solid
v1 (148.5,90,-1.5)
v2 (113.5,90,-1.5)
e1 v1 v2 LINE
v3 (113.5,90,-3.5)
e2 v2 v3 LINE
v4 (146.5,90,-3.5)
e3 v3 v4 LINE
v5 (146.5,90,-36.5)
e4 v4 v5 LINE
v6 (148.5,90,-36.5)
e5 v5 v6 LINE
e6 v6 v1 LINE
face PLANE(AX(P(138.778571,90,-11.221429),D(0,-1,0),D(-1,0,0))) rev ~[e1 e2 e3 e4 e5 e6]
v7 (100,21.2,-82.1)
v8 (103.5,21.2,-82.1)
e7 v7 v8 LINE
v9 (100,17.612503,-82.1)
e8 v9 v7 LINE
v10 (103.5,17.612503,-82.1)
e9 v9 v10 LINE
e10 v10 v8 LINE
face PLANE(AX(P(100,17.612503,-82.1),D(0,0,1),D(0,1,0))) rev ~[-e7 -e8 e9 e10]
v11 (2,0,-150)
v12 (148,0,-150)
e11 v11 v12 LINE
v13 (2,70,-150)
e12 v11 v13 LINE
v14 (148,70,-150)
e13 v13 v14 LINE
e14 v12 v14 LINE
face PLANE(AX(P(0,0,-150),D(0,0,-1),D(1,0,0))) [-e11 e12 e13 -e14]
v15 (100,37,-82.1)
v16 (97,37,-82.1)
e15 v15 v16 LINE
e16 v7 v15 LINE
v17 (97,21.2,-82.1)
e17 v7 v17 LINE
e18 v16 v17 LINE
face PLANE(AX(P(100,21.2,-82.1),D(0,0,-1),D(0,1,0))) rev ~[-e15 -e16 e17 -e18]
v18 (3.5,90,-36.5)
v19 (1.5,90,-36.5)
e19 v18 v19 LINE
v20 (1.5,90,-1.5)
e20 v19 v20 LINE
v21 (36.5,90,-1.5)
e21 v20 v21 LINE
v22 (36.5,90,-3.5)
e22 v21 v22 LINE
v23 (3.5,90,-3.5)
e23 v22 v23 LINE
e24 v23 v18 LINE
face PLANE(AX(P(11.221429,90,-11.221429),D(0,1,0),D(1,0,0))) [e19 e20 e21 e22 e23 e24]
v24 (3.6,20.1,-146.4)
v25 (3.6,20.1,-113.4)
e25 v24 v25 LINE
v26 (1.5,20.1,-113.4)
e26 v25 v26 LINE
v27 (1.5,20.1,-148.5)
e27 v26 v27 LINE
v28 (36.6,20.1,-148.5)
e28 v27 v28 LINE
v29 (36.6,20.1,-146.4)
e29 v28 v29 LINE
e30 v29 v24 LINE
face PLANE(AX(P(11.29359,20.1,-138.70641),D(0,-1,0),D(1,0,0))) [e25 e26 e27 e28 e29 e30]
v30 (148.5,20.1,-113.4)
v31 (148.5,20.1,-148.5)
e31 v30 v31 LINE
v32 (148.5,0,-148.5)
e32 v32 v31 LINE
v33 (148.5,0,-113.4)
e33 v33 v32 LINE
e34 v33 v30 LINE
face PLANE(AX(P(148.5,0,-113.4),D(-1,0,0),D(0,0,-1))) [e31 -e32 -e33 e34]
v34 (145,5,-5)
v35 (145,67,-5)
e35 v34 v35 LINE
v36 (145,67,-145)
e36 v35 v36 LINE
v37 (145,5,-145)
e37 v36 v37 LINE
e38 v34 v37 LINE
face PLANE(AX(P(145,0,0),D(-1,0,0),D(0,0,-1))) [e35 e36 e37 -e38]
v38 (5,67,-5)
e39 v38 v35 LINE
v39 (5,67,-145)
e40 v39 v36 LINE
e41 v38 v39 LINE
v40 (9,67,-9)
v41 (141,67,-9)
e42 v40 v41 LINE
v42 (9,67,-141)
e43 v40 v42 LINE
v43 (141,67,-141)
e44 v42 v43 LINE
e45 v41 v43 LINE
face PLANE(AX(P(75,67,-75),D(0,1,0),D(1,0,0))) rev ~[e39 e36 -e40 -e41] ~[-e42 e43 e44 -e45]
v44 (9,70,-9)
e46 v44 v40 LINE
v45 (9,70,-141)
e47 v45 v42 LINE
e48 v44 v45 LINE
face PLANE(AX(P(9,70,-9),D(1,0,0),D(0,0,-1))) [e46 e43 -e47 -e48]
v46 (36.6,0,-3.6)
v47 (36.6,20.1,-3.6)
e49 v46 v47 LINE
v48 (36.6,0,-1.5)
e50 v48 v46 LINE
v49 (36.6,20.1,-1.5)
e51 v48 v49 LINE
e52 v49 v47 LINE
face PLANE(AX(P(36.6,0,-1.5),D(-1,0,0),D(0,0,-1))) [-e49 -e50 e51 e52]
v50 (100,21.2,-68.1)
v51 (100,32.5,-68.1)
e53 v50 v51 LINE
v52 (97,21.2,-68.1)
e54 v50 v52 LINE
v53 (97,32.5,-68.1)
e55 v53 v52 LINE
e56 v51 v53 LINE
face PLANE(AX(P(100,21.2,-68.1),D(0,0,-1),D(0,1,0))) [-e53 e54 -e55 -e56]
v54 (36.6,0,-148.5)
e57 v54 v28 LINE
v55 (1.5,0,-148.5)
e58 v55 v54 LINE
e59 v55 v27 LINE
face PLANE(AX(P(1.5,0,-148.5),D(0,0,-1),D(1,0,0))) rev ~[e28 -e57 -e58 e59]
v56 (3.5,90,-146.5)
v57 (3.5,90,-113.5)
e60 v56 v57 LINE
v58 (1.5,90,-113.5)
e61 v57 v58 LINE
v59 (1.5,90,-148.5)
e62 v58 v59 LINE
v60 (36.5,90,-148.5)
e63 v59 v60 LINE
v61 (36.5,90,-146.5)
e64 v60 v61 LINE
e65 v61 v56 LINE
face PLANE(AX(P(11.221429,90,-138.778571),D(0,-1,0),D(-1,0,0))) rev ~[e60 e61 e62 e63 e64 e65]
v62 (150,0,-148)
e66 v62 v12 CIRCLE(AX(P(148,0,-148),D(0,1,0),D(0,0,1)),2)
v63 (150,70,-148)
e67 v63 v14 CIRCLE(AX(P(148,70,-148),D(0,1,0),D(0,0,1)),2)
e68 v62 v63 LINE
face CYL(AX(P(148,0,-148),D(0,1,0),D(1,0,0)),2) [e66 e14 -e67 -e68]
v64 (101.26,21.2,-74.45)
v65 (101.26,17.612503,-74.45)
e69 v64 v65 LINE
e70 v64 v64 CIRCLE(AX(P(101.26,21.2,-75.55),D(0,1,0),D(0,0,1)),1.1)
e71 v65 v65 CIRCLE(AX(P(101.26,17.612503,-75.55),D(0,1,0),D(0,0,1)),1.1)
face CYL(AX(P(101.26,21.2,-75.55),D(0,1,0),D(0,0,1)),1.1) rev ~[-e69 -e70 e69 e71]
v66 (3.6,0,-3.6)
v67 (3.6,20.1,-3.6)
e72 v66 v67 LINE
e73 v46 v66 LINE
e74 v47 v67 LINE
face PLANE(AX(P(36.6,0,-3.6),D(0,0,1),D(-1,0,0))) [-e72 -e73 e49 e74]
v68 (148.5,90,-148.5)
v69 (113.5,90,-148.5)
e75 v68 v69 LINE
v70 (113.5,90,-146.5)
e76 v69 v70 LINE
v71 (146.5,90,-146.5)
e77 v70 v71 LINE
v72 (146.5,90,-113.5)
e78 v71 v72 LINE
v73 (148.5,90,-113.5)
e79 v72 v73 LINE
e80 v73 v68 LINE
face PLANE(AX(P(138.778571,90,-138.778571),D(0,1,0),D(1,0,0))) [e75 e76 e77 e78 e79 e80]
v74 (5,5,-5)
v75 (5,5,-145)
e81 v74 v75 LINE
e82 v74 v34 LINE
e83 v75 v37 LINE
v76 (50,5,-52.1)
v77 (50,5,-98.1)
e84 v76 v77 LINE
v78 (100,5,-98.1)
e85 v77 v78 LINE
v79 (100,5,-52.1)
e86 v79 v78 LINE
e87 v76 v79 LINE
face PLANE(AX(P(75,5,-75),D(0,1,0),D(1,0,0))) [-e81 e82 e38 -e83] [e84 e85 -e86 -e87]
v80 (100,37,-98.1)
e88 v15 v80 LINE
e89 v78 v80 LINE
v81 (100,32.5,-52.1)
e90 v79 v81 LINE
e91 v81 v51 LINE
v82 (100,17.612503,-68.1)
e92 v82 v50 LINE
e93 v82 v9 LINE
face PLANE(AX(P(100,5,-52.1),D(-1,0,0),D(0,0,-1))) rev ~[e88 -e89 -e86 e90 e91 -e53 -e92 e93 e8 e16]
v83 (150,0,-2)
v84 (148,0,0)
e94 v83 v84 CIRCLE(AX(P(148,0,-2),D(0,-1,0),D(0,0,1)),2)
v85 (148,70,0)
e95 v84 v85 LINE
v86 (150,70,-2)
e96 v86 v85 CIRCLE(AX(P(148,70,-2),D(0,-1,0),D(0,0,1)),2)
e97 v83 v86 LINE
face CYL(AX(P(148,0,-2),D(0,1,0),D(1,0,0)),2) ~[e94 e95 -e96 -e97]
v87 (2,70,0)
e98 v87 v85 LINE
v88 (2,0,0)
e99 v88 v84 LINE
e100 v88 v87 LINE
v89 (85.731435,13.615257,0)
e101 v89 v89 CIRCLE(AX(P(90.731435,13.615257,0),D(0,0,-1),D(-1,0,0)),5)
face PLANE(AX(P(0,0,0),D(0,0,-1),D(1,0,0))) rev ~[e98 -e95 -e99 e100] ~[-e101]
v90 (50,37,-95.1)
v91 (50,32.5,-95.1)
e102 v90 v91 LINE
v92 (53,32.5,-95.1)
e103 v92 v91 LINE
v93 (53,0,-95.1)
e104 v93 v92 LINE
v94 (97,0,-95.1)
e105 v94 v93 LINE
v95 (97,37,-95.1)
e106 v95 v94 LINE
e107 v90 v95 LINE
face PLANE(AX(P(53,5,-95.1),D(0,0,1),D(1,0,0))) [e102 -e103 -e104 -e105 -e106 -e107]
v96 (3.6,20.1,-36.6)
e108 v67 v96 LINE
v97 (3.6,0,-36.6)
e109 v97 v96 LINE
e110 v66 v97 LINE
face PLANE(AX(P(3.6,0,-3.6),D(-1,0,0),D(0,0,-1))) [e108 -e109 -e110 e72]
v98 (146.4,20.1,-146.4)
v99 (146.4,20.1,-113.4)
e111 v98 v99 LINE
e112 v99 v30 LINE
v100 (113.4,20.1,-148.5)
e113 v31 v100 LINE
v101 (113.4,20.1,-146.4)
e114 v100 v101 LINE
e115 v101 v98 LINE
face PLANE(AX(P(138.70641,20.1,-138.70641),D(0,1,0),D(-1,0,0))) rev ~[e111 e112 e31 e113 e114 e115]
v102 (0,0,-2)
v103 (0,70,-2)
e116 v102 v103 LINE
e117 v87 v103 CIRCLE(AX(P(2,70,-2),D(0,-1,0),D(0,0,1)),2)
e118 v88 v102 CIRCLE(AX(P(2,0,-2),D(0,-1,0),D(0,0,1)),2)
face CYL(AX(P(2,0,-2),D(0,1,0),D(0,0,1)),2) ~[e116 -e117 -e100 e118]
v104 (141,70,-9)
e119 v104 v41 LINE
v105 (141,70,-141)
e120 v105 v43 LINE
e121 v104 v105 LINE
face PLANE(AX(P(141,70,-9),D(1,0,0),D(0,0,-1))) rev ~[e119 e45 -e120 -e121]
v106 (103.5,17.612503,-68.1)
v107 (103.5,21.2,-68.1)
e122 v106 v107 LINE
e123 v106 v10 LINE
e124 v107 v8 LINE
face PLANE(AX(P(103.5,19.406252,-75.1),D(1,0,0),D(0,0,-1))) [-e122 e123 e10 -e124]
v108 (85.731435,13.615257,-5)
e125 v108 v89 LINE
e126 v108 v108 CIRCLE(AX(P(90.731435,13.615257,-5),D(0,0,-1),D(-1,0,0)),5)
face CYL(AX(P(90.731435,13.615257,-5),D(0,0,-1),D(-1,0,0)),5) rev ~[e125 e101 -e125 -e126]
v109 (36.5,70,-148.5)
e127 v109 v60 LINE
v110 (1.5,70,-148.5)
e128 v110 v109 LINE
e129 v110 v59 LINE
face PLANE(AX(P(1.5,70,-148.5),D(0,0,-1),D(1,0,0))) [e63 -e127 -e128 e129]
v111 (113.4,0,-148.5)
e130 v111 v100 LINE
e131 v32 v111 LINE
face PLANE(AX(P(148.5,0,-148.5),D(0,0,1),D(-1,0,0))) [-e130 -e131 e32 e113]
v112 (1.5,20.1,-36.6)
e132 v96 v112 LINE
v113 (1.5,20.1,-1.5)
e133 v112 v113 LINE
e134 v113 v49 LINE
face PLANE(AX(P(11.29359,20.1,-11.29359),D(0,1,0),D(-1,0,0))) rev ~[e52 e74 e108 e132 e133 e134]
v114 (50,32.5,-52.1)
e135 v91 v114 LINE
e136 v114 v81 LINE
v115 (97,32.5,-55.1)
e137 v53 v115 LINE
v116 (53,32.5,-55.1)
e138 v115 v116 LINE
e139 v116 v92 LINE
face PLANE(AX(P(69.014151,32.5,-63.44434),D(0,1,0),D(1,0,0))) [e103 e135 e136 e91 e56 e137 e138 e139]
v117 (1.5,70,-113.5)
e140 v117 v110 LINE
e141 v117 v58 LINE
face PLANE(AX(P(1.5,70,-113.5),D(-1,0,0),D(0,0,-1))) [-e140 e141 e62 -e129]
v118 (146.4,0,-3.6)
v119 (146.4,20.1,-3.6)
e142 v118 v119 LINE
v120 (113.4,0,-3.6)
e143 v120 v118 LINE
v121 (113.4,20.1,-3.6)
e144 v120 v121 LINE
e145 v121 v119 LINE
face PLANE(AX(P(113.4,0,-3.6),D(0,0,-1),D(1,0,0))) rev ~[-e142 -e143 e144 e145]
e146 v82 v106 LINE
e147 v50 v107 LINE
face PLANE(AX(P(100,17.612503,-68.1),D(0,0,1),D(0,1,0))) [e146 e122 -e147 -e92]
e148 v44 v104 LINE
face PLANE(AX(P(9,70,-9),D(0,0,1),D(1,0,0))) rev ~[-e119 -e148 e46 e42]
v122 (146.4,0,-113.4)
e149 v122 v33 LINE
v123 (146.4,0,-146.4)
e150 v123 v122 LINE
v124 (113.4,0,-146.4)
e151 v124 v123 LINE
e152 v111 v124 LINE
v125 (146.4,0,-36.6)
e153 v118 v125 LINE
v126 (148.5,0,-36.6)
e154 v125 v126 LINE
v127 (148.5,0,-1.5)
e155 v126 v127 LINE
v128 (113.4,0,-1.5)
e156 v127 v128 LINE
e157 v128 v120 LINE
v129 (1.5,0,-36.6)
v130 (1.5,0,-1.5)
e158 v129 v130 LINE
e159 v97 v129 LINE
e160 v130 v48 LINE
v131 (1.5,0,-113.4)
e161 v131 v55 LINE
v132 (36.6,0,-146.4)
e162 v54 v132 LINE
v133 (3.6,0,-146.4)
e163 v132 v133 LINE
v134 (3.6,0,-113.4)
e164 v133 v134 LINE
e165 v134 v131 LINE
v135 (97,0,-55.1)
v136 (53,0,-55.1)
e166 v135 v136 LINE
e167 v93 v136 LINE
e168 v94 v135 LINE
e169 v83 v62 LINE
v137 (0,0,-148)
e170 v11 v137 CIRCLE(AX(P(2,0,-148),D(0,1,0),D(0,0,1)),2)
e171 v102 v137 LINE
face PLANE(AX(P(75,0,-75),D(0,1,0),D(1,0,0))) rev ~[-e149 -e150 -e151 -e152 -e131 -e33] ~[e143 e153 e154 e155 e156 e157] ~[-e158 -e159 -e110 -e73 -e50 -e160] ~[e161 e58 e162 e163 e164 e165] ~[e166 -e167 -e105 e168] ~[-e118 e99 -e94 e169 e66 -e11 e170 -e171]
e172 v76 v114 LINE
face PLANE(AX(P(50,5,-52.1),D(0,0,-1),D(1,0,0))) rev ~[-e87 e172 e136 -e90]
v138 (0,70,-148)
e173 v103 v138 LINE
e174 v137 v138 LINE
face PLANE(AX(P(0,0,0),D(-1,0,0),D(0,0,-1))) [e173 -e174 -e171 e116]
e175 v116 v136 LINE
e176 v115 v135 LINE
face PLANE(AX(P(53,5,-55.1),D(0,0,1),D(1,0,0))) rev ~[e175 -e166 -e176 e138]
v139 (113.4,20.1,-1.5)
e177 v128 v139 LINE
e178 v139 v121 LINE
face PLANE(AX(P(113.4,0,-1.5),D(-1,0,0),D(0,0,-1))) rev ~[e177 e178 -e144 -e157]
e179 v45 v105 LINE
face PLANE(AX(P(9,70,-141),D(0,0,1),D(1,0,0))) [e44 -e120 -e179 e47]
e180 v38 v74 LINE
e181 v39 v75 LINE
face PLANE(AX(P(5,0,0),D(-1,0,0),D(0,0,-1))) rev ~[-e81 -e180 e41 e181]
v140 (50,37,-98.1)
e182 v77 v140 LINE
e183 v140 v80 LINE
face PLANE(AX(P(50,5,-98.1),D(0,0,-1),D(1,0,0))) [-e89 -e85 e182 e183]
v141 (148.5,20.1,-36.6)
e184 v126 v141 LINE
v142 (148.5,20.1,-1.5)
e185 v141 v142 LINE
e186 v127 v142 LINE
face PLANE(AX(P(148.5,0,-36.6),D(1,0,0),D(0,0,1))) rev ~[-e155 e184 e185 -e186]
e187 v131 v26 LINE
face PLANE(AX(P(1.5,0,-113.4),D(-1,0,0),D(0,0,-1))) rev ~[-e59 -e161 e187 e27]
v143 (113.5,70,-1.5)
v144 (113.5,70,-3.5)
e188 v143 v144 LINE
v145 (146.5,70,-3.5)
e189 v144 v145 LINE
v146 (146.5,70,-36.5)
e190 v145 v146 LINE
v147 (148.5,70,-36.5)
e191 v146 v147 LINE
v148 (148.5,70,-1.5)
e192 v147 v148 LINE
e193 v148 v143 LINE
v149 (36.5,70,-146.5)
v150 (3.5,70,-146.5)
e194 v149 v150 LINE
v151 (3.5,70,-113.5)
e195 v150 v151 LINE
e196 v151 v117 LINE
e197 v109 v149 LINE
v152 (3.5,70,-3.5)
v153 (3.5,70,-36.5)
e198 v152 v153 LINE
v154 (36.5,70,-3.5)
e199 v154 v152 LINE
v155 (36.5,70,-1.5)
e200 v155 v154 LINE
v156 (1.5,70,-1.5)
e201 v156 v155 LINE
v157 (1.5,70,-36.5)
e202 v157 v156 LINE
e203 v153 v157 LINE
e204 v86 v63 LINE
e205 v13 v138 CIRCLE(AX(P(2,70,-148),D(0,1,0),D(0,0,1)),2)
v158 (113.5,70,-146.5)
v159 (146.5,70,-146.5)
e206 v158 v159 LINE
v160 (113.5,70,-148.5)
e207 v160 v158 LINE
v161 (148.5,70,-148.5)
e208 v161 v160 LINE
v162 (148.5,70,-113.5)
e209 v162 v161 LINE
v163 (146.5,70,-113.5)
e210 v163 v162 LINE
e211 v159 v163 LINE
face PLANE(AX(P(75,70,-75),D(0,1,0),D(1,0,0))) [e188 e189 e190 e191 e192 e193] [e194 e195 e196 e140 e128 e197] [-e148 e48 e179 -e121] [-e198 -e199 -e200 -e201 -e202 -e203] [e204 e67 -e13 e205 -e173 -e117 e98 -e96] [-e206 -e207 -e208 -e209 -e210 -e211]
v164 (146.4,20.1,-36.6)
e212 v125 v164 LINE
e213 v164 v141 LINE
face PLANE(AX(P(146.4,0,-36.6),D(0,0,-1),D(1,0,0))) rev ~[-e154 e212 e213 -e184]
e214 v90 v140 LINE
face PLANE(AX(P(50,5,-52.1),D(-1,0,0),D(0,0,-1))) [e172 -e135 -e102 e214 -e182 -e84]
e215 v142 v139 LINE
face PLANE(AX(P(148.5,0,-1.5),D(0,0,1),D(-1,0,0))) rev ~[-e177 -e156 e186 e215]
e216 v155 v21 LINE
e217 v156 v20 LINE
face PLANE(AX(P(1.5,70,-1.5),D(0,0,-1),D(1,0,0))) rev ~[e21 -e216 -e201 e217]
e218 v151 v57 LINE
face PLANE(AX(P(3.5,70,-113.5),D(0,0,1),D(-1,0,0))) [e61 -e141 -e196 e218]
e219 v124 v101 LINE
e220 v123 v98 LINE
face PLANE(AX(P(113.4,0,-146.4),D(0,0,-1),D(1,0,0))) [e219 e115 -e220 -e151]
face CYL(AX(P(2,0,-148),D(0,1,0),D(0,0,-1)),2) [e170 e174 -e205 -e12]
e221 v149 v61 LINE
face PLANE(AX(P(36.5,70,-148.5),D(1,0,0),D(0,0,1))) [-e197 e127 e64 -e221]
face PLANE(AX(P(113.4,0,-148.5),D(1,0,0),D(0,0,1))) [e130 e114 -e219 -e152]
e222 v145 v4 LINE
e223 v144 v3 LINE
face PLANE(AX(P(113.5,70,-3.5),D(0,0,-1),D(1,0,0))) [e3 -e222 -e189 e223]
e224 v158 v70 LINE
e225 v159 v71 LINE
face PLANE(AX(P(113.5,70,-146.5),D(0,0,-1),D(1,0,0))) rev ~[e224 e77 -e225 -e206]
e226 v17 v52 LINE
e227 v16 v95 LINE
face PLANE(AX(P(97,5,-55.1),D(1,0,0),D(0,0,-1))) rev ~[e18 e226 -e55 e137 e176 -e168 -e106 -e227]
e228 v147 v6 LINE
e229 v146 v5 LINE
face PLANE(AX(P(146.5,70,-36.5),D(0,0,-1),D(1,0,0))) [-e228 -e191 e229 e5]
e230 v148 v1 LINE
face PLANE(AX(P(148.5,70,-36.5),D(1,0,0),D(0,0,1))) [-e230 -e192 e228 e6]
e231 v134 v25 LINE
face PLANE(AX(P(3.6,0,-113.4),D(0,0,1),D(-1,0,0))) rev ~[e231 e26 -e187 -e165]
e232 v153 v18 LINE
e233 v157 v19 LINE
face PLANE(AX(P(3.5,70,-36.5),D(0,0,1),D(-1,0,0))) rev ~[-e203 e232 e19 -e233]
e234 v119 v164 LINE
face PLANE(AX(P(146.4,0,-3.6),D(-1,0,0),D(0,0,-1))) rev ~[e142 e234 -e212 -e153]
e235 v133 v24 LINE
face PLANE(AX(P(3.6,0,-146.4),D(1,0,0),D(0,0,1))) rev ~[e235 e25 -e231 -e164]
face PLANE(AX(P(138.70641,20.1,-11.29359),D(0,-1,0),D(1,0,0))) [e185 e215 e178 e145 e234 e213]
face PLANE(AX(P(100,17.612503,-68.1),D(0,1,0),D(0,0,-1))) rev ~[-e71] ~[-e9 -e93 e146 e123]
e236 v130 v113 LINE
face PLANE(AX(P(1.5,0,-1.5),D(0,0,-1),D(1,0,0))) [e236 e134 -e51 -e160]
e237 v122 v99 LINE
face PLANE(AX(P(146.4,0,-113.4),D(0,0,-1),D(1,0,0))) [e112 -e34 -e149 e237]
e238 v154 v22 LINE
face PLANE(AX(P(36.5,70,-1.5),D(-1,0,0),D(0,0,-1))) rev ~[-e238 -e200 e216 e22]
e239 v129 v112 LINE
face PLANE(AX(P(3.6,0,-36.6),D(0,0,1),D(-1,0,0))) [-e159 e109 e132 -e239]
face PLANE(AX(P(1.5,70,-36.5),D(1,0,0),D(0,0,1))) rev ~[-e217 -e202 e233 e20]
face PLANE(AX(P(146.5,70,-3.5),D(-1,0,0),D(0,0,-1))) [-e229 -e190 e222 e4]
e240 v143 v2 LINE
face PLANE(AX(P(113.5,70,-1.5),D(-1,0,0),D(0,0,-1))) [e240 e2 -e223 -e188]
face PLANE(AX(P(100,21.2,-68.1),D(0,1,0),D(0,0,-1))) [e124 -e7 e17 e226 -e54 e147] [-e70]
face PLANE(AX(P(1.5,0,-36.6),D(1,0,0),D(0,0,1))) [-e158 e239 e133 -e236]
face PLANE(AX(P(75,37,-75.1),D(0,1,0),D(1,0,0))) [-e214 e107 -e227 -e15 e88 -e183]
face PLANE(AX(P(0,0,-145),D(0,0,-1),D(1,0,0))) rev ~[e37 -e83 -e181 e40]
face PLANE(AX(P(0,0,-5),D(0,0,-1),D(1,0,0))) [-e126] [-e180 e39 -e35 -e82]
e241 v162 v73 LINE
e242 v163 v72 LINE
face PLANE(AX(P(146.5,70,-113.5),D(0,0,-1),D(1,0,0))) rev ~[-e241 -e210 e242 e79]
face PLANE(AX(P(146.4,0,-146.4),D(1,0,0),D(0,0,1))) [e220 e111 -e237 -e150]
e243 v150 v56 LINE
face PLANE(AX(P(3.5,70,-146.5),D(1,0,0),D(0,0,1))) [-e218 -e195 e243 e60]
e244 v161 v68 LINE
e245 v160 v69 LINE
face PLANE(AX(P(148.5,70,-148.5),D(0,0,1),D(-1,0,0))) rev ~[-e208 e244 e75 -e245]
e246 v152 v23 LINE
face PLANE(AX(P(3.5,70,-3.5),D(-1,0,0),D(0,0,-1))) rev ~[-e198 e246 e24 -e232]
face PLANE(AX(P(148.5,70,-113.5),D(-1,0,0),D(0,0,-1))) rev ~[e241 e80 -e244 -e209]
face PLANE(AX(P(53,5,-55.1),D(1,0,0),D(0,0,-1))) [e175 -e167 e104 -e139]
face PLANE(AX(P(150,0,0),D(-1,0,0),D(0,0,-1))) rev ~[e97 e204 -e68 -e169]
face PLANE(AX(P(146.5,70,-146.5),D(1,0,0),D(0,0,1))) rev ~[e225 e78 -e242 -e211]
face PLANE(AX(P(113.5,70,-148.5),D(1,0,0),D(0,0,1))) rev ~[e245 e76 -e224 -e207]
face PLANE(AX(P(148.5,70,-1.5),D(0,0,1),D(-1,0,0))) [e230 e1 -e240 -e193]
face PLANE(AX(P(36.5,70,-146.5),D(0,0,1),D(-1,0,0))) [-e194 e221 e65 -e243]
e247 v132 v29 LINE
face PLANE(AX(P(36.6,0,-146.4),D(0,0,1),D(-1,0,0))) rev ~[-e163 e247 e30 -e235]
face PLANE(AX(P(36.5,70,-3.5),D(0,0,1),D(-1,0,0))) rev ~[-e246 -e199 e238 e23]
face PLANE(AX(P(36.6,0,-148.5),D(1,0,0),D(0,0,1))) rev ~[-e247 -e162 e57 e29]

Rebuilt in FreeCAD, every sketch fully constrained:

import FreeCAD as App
import Part
import Sketcher
from FreeCAD import Vector
Q = App.Units.Quantity


def edges_at(feature, points):
    """Names of the edges that pass closest to the given points."""
    edges = feature.Shape.Edges
    near = lambda p: min(range(len(edges)), key=lambda i: edges[i].distToShape(Part.Vertex(*p))[0])
    return sorted({f"Edge{near(p) + 1}" for p in points})


def faces_at(feature, points):
    """Names of the faces that lie closest to the given points."""
    faces = feature.Shape.Faces
    near = lambda p: min(range(len(faces)), key=lambda i: faces[i].distToShape(Part.Vertex(*p))[0])
    return sorted({f"Face{near(p) + 1}" for p in points})

doc = App.newDocument("Part")
body = doc.addObject("PartDesign::Body", "Body")

sketch1 = body.newObject("Sketcher::SketchObject", "Sketch")
sketch1.AttachmentSupport = (doc.getObject("XZ_Plane"), [""])
sketch1.MapMode = "FlatFace"
sketch1.addGeometry(Part.LineSegment(Vector(0, -150, 0), Vector(0, 0, 0)), False)
sketch1.addGeometry(Part.LineSegment(Vector(0, 0, 0), Vector(150, 0, 0)), False)
sketch1.addGeometry(Part.LineSegment(Vector(150, 0, 0), Vector(150, -150, 0)), False)
sketch1.addGeometry(Part.LineSegment(Vector(150, -150, 0), Vector(0, -150, 0)), False)
sketch1.addConstraint(Sketcher.Constraint("Coincident", 0, 2, 1, 1))
sketch1.addConstraint(Sketcher.Constraint("Coincident", 1, 2, 2, 1))
sketch1.addConstraint(Sketcher.Constraint("Coincident", 2, 2, 3, 1))
sketch1.addConstraint(Sketcher.Constraint("Coincident", 3, 2, 0, 1))
sketch1.addConstraint(Sketcher.Constraint("Vertical", 0))
sketch1.addConstraint(Sketcher.Constraint("Horizontal", 1))
sketch1.addConstraint(Sketcher.Constraint("Vertical", 2))
sketch1.addConstraint(Sketcher.Constraint("Horizontal", 3))
sketch1.addConstraint(Sketcher.Constraint("Coincident", 0, 2, -1, 1))
sketch1.addConstraint(Sketcher.Constraint("Equal", 3, 0))
sketch1.addConstraint(Sketcher.Constraint("DistanceX", 1, 1, 1, 2, Q("150 mm")))
pad1 = body.newObject("PartDesign::Pad", "Pad")
pad1.Profile = sketch1
pad1.Length = 70
pad1.Reversed = True
doc.recompute()

thickness = body.newObject("PartDesign::Thickness", "Thickness")
thickness.Base = (pad1, faces_at(pad1, [(75, 70, -75)]))
thickness.Value = 5
thickness.Reversed = True
thickness.Join = "Intersection"

sketch2 = body.newObject("Sketcher::SketchObject", "Sketch001")
sketch2.AttachmentSupport = (doc.getObject("XZ_Plane"), [""])
sketch2.MapMode = "FlatFace"
sketch2.AttachmentOffset = App.Placement(Vector(0, 0, -5), App.Rotation())
sketch2.addGeometry(Part.LineSegment(Vector(50, -98.1, 0), Vector(50, -52.1, 0)), False)
sketch2.addGeometry(Part.LineSegment(Vector(50, -52.1, 0), Vector(100, -52.1, 0)), False)
sketch2.addGeometry(Part.LineSegment(Vector(100, -52.1, 0), Vector(100, -98.1, 0)), False)
sketch2.addGeometry(Part.LineSegment(Vector(100, -98.1, 0), Vector(50, -98.1, 0)), False)
sketch2.addGeometry(Part.LineSegment(Vector(97, -55.1, 0), Vector(53, -55.1, 0)), False)
sketch2.addGeometry(Part.LineSegment(Vector(53, -55.1, 0), Vector(53, -95.1, 0)), False)
sketch2.addGeometry(Part.LineSegment(Vector(53, -95.1, 0), Vector(97, -95.1, 0)), False)
sketch2.addGeometry(Part.LineSegment(Vector(97, -95.1, 0), Vector(97, -55.1, 0)), False)
sketch2.addConstraint(Sketcher.Constraint("Coincident", 0, 2, 1, 1))
sketch2.addConstraint(Sketcher.Constraint("Coincident", 1, 2, 2, 1))
sketch2.addConstraint(Sketcher.Constraint("Coincident", 2, 2, 3, 1))
sketch2.addConstraint(Sketcher.Constraint("Coincident", 3, 2, 0, 1))
sketch2.addConstraint(Sketcher.Constraint("Coincident", 4, 2, 5, 1))
sketch2.addConstraint(Sketcher.Constraint("Coincident", 5, 2, 6, 1))
sketch2.addConstraint(Sketcher.Constraint("Coincident", 6, 2, 7, 1))
sketch2.addConstraint(Sketcher.Constraint("Coincident", 7, 2, 4, 1))
sketch2.addConstraint(Sketcher.Constraint("Vertical", 0))
sketch2.addConstraint(Sketcher.Constraint("Horizontal", 1))
sketch2.addConstraint(Sketcher.Constraint("Vertical", 2))
sketch2.addConstraint(Sketcher.Constraint("Horizontal", 3))
sketch2.addConstraint(Sketcher.Constraint("Horizontal", 4))
sketch2.addConstraint(Sketcher.Constraint("Vertical", 5))
sketch2.addConstraint(Sketcher.Constraint("Horizontal", 6))
sketch2.addConstraint(Sketcher.Constraint("Vertical", 7))
sketch2.addConstraint(Sketcher.Constraint("DistanceX", 1, 1, 1, 2, Q("50 mm")))
sketch2.addConstraint(Sketcher.Constraint("DistanceX", 4, 2, 4, 1, Q("44 mm")))
sketch2.addConstraint(Sketcher.Constraint("DistanceY", 0, 1, 0, 2, Q("46 mm")))
sketch2.addConstraint(Sketcher.Constraint("DistanceY", 5, 2, 5, 1, Q("40 mm")))
sketch2.addConstraint(Sketcher.Constraint("DistanceX", -1, 1, 0, 2, Q("50 mm")))
sketch2.addConstraint(Sketcher.Constraint("DistanceX", -1, 1, 4, 2, Q("53 mm")))
sketch2.addConstraint(Sketcher.Constraint("DistanceY", 4, 2, 0, 2, Q("3 mm")))
sketch2.addConstraint(Sketcher.Constraint("DistanceY", 0, 2, -1, 1, Q("52.1 mm")))
pad2 = body.newObject("PartDesign::Pad", "Pad001")
pad2.Profile = sketch2
pad2.Length = 32
pad2.Reversed = True

sketch3 = body.newObject("Sketcher::SketchObject", "Sketch002")
sketch3.AttachmentSupport = (doc.getObject("XZ_Plane"), [""])
sketch3.MapMode = "FlatFace"
sketch3.AttachmentOffset = App.Placement(Vector(0, 0, -5), App.Rotation())
sketch3.addGeometry(Part.LineSegment(Vector(53, -95.1, 0), Vector(53, -55.1, 0)), False)
sketch3.addGeometry(Part.LineSegment(Vector(53, -55.1, 0), Vector(97, -55.1, 0)), False)
sketch3.addGeometry(Part.LineSegment(Vector(97, -55.1, 0), Vector(97, -95.1, 0)), False)
sketch3.addGeometry(Part.LineSegment(Vector(97, -95.1, 0), Vector(53, -95.1, 0)), False)
sketch3.addConstraint(Sketcher.Constraint("Coincident", 0, 2, 1, 1))
sketch3.addConstraint(Sketcher.Constraint("Coincident", 1, 2, 2, 1))
sketch3.addConstraint(Sketcher.Constraint("Coincident", 2, 2, 3, 1))
sketch3.addConstraint(Sketcher.Constraint("Coincident", 3, 2, 0, 1))
sketch3.addConstraint(Sketcher.Constraint("Vertical", 0))
sketch3.addConstraint(Sketcher.Constraint("Horizontal", 1))
sketch3.addConstraint(Sketcher.Constraint("Vertical", 2))
sketch3.addConstraint(Sketcher.Constraint("Horizontal", 3))
sketch3.addConstraint(Sketcher.Constraint("DistanceX", 1, 1, 1, 2, Q("44 mm")))
sketch3.addConstraint(Sketcher.Constraint("DistanceY", 0, 1, 0, 2, Q("40 mm")))
sketch3.addConstraint(Sketcher.Constraint("DistanceX", -1, 1, 0, 2, Q("53 mm")))
sketch3.addConstraint(Sketcher.Constraint("DistanceY", 0, 2, -1, 1, Q("55.1 mm")))
pocket1 = body.newObject("PartDesign::Pocket", "Pocket")
pocket1.Profile = sketch3
pocket1.Type = "UpToFirst"
pocket1.Reversed = True

sketch4 = body.newObject("Sketcher::SketchObject", "Sketch003")
sketch4.AttachmentSupport = (doc.getObject("XZ_Plane"), [""])
sketch4.MapMode = "FlatFace"
sketch4.AttachmentOffset = App.Placement(Vector(0, 0, -70), App.Rotation())
sketch4.addGeometry(Part.LineSegment(Vector(1.5, -148.5, 0), Vector(1.5, -113.5, 0)), False)
sketch4.addGeometry(Part.LineSegment(Vector(1.5, -113.5, 0), Vector(3.5, -113.5, 0)), False)
sketch4.addGeometry(Part.LineSegment(Vector(3.5, -113.5, 0), Vector(3.5, -146.5, 0)), False)
sketch4.addGeometry(Part.LineSegment(Vector(3.5, -146.5, 0), Vector(36.5, -146.5, 0)), False)
sketch4.addGeometry(Part.LineSegment(Vector(36.5, -146.5, 0), Vector(36.5, -148.5, 0)), False)
sketch4.addGeometry(Part.LineSegment(Vector(36.5, -148.5, 0), Vector(1.5, -148.5, 0)), False)
sketch4.addGeometry(Part.LineSegment(Vector(1.5, -36.5, 0), Vector(1.5, -1.5, 0)), False)
sketch4.addGeometry(Part.LineSegment(Vector(1.5, -1.5, 0), Vector(36.5, -1.5, 0)), False)
sketch4.addGeometry(Part.LineSegment(Vector(36.5, -1.5, 0), Vector(36.5, -3.5, 0)), False)
sketch4.addGeometry(Part.LineSegment(Vector(36.5, -3.5, 0), Vector(3.5, -3.5, 0)), False)
sketch4.addGeometry(Part.LineSegment(Vector(3.5, -3.5, 0), Vector(3.5, -36.5, 0)), False)
sketch4.addGeometry(Part.LineSegment(Vector(3.5, -36.5, 0), Vector(1.5, -36.5, 0)), False)
sketch4.addGeometry(Part.LineSegment(Vector(148.5, -1.5, 0), Vector(148.5, -36.5, 0)), False)
sketch4.addGeometry(Part.LineSegment(Vector(148.5, -36.5, 0), Vector(146.5, -36.5, 0)), False)
sketch4.addGeometry(Part.LineSegment(Vector(146.5, -36.5, 0), Vector(146.5, -3.5, 0)), False)
sketch4.addGeometry(Part.LineSegment(Vector(146.5, -3.5, 0), Vector(113.5, -3.5, 0)), False)
sketch4.addGeometry(Part.LineSegment(Vector(113.5, -3.5, 0), Vector(113.5, -1.5, 0)), False)
sketch4.addGeometry(Part.LineSegment(Vector(113.5, -1.5, 0), Vector(148.5, -1.5, 0)), False)
sketch4.addGeometry(Part.LineSegment(Vector(148.5, -113.5, 0), Vector(148.5, -148.5, 0)), False)
sketch4.addGeometry(Part.LineSegment(Vector(148.5, -148.5, 0), Vector(113.5, -148.5, 0)), False)
sketch4.addGeometry(Part.LineSegment(Vector(113.5, -148.5, 0), Vector(113.5, -146.5, 0)), False)
sketch4.addGeometry(Part.LineSegment(Vector(113.5, -146.5, 0), Vector(146.5, -146.5, 0)), False)
sketch4.addGeometry(Part.LineSegment(Vector(146.5, -146.5, 0), Vector(146.5, -113.5, 0)), False)
sketch4.addGeometry(Part.LineSegment(Vector(146.5, -113.5, 0), Vector(148.5, -113.5, 0)), False)
sketch4.addConstraint(Sketcher.Constraint("Coincident", 0, 2, 1, 1))
sketch4.addConstraint(Sketcher.Constraint("Coincident", 1, 2, 2, 1))
sketch4.addConstraint(Sketcher.Constraint("Coincident", 2, 2, 3, 1))
sketch4.addConstraint(Sketcher.Constraint("Coincident", 3, 2, 4, 1))
sketch4.addConstraint(Sketcher.Constraint("Coincident", 4, 2, 5, 1))
sketch4.addConstraint(Sketcher.Constraint("Coincident", 5, 2, 0, 1))
sketch4.addConstraint(Sketcher.Constraint("Coincident", 6, 2, 7, 1))
sketch4.addConstraint(Sketcher.Constraint("Coincident", 7, 2, 8, 1))
sketch4.addConstraint(Sketcher.Constraint("Coincident", 8, 2, 9, 1))
sketch4.addConstraint(Sketcher.Constraint("Coincident", 9, 2, 10, 1))
sketch4.addConstraint(Sketcher.Constraint("Coincident", 10, 2, 11, 1))
sketch4.addConstraint(Sketcher.Constraint("Coincident", 11, 2, 6, 1))
sketch4.addConstraint(Sketcher.Constraint("Coincident", 12, 2, 13, 1))
sketch4.addConstraint(Sketcher.Constraint("Coincident", 13, 2, 14, 1))
sketch4.addConstraint(Sketcher.Constraint("Coincident", 14, 2, 15, 1))
sketch4.addConstraint(Sketcher.Constraint("Coincident", 15, 2, 16, 1))
sketch4.addConstraint(Sketcher.Constraint("Coincident", 16, 2, 17, 1))
sketch4.addConstraint(Sketcher.Constraint("Coincident", 17, 2, 12, 1))
sketch4.addConstraint(Sketcher.Constraint("Coincident", 18, 2, 19, 1))
sketch4.addConstraint(Sketcher.Constraint("Coincident", 19, 2, 20, 1))
sketch4.addConstraint(Sketcher.Constraint("Coincident", 20, 2, 21, 1))
sketch4.addConstraint(Sketcher.Constraint("Coincident", 21, 2, 22, 1))
sketch4.addConstraint(Sketcher.Constraint("Coincident", 22, 2, 23, 1))
sketch4.addConstraint(Sketcher.Constraint("Coincident", 23, 2, 18, 1))
sketch4.addConstraint(Sketcher.Constraint("Vertical", 0))
sketch4.addConstraint(Sketcher.Constraint("Horizontal", 1))
sketch4.addConstraint(Sketcher.Constraint("Vertical", 2))
sketch4.addConstraint(Sketcher.Constraint("Horizontal", 3))
sketch4.addConstraint(Sketcher.Constraint("Vertical", 4))
sketch4.addConstraint(Sketcher.Constraint("Horizontal", 5))
sketch4.addConstraint(Sketcher.Constraint("Vertical", 6))
sketch4.addConstraint(Sketcher.Constraint("Horizontal", 7))
sketch4.addConstraint(Sketcher.Constraint("Vertical", 8))
sketch4.addConstraint(Sketcher.Constraint("Horizontal", 9))
sketch4.addConstraint(Sketcher.Constraint("Vertical", 10))
sketch4.addConstraint(Sketcher.Constraint("Horizontal", 11))
sketch4.addConstraint(Sketcher.Constraint("Vertical", 12))
sketch4.addConstraint(Sketcher.Constraint("Horizontal", 13))
sketch4.addConstraint(Sketcher.Constraint("Vertical", 14))
sketch4.addConstraint(Sketcher.Constraint("Horizontal", 15))
sketch4.addConstraint(Sketcher.Constraint("Vertical", 16))
sketch4.addConstraint(Sketcher.Constraint("Horizontal", 17))
sketch4.addConstraint(Sketcher.Constraint("Vertical", 18))
sketch4.addConstraint(Sketcher.Constraint("Horizontal", 19))
sketch4.addConstraint(Sketcher.Constraint("Vertical", 20))
sketch4.addConstraint(Sketcher.Constraint("Horizontal", 21))
sketch4.addConstraint(Sketcher.Constraint("Vertical", 22))
sketch4.addConstraint(Sketcher.Constraint("Horizontal", 23))
sketch4.addConstraint(Sketcher.Constraint("Horizontal", 11, 2, 12, 2))
sketch4.addConstraint(Sketcher.Constraint("Horizontal", 9, 2, 14, 2))
sketch4.addConstraint(Sketcher.Constraint("Horizontal", 7, 2, 16, 2))
sketch4.addConstraint(Sketcher.Constraint("Horizontal", 5, 2, 18, 2))
sketch4.addConstraint(Sketcher.Constraint("Horizontal", 3, 2, 20, 2))
sketch4.addConstraint(Sketcher.Constraint("Horizontal", 1, 2, 22, 2))
sketch4.addConstraint(Sketcher.Constraint("Vertical", 5, 2, 6, 2))
sketch4.addConstraint(Sketcher.Constraint("Vertical", 4, 2, 7, 2))
sketch4.addConstraint(Sketcher.Constraint("Vertical", 2, 2, 9, 2))
sketch4.addConstraint(Sketcher.Constraint("Vertical", 17, 2, 18, 2))
sketch4.addConstraint(Sketcher.Constraint("Vertical", 16, 2, 19, 2))
sketch4.addConstraint(Sketcher.Constraint("Vertical", 14, 2, 21, 2))
sketch4.addConstraint(Sketcher.Constraint("Equal", 11, 13))
sketch4.addConstraint(Sketcher.Constraint("Equal", 9, 15))
sketch4.addConstraint(Sketcher.Constraint("Equal", 19, 0))
sketch4.addConstraint(Sketcher.Constraint("Equal", 21, 2))
sketch4.addConstraint(Sketcher.Constraint("Equal", 0, 6))
sketch4.addConstraint(Sketcher.Constraint("Equal", 4, 8))
sketch4.addConstraint(Sketcher.Constraint("DistanceX", 1, 1, 1, 2, Q("2 mm")))
sketch4.addConstraint(Sketcher.Constraint("DistanceX", 3, 1, 3, 2, Q("33 mm")))
sketch4.addConstraint(Sketcher.Constraint("DistanceY", 0, 2, 6, 2, Q("112 mm")))
sketch4.addConstraint(Sketcher.Constraint("DistanceX", 8, 2, 12, 2, Q("112 mm")))
sketch4.addConstraint(Sketcher.Constraint("DistanceX", -1, 1, 0, 2, Q("1.5 mm")))
sketch4.addConstraint(Sketcher.Constraint("DistanceY", 0, 2, -1, 1, Q("113.5 mm")))
pad3 = body.newObject("PartDesign::Pad", "Pad002")
pad3.Profile = sketch4
pad3.Length = 20
pad3.Reversed = True

sketch5 = body.newObject("Sketcher::SketchObject", "Sketch004")
sketch5.AttachmentSupport = (doc.getObject("XZ_Plane"), [""])
sketch5.MapMode = "FlatFace"
sketch5.AttachmentOffset = App.Placement(Vector(0, 0, -70), App.Rotation())
sketch5.addGeometry(Part.LineSegment(Vector(5, -145, 0), Vector(5, -5, 0)), False)
sketch5.addGeometry(Part.LineSegment(Vector(5, -5, 0), Vector(145, -5, 0)), False)
sketch5.addGeometry(Part.LineSegment(Vector(145, -5, 0), Vector(145, -145, 0)), False)
sketch5.addGeometry(Part.LineSegment(Vector(145, -145, 0), Vector(5, -145, 0)), False)
sketch5.addGeometry(Part.LineSegment(Vector(141, -9, 0), Vector(9, -9, 0)), False)
sketch5.addGeometry(Part.LineSegment(Vector(9, -9, 0), Vector(9, -141, 0)), False)
sketch5.addGeometry(Part.LineSegment(Vector(9, -141, 0), Vector(141, -141, 0)), False)
sketch5.addGeometry(Part.LineSegment(Vector(141, -141, 0), Vector(141, -9, 0)), False)
sketch5.addConstraint(Sketcher.Constraint("Coincident", 0, 2, 1, 1))
sketch5.addConstraint(Sketcher.Constraint("Coincident", 1, 2, 2, 1))
sketch5.addConstraint(Sketcher.Constraint("Coincident", 2, 2, 3, 1))
sketch5.addConstraint(Sketcher.Constraint("Coincident", 3, 2, 0, 1))
sketch5.addConstraint(Sketcher.Constraint("Coincident", 4, 2, 5, 1))
sketch5.addConstraint(Sketcher.Constraint("Coincident", 5, 2, 6, 1))
sketch5.addConstraint(Sketcher.Constraint("Coincident", 6, 2, 7, 1))
sketch5.addConstraint(Sketcher.Constraint("Coincident", 7, 2, 4, 1))
sketch5.addConstraint(Sketcher.Constraint("Vertical", 0))
sketch5.addConstraint(Sketcher.Constraint("Horizontal", 1))
sketch5.addConstraint(Sketcher.Constraint("Vertical", 2))
sketch5.addConstraint(Sketcher.Constraint("Horizontal", 3))
sketch5.addConstraint(Sketcher.Constraint("Horizontal", 4))
sketch5.addConstraint(Sketcher.Constraint("Vertical", 5))
sketch5.addConstraint(Sketcher.Constraint("Horizontal", 6))
sketch5.addConstraint(Sketcher.Constraint("Vertical", 7))
sketch5.addConstraint(Sketcher.Constraint("Equal", 3, 0))
sketch5.addConstraint(Sketcher.Constraint("Equal", 6, 5))
sketch5.addConstraint(Sketcher.Constraint("DistanceX", 1, 1, 1, 2, Q("140 mm")))
sketch5.addConstraint(Sketcher.Constraint("DistanceX", 4, 2, 4, 1, Q("132 mm")))
sketch5.addConstraint(Sketcher.Constraint("DistanceX", -1, 1, 0, 2, Q("5 mm")))
sketch5.addConstraint(Sketcher.Constraint("DistanceY", 0, 2, -1, 1, Q("5 mm")))
sketch5.addConstraint(Sketcher.Constraint("DistanceX", -1, 1, 4, 2, Q("9 mm")))
sketch5.addConstraint(Sketcher.Constraint("DistanceY", 4, 2, -1, 1, Q("9 mm")))
pad4 = body.newObject("PartDesign::Pad", "Pad003")
pad4.Profile = sketch5
pad4.Length = 3

sketch6 = body.newObject("Sketcher::SketchObject", "Sketch005")
sketch6.AttachmentSupport = (doc.getObject("YZ_Plane"), [""])
sketch6.MapMode = "FlatFace"
sketch6.AttachmentOffset = App.Placement(Vector(0, 0, 100), App.Rotation())
sketch6.addGeometry(Part.LineSegment(Vector(37, -68.1, 0), Vector(21.2, -68.1, 0)), False)
sketch6.addGeometry(Part.LineSegment(Vector(21.2, -68.1, 0), Vector(21.2, -82.1, 0)), False)
sketch6.addGeometry(Part.LineSegment(Vector(21.2, -82.1, 0), Vector(37, -82.1, 0)), False)
sketch6.addGeometry(Part.LineSegment(Vector(37, -82.1, 0), Vector(37, -68.1, 0)), False)
sketch6.addConstraint(Sketcher.Constraint("Coincident", 0, 2, 1, 1))
sketch6.addConstraint(Sketcher.Constraint("Coincident", 1, 2, 2, 1))
sketch6.addConstraint(Sketcher.Constraint("Coincident", 2, 2, 3, 1))
sketch6.addConstraint(Sketcher.Constraint("Coincident", 3, 2, 0, 1))
sketch6.addConstraint(Sketcher.Constraint("Horizontal", 0))
sketch6.addConstraint(Sketcher.Constraint("Vertical", 1))
sketch6.addConstraint(Sketcher.Constraint("Horizontal", 2))
sketch6.addConstraint(Sketcher.Constraint("Vertical", 3))
sketch6.addConstraint(Sketcher.Constraint("DistanceY", 1, 2, 1, 1, Q("14 mm")))
sketch6.addConstraint(Sketcher.Constraint("DistanceX", 0, 2, 0, 1, Q("15.8 mm")))
sketch6.addConstraint(Sketcher.Constraint("DistanceX", -1, 1, 2, 2, Q("37 mm")))
sketch6.addConstraint(Sketcher.Constraint("DistanceY", 0, 2, -1, 1, Q("68.1 mm")))
pocket2 = body.newObject("PartDesign::Pocket", "Pocket001")
pocket2.Profile = sketch6
pocket2.Type = "UpToFirst"

sketch7 = body.newObject("Sketcher::SketchObject", "Sketch006")
sketch7.AttachmentSupport = (doc.getObject("YZ_Plane"), [""])
sketch7.MapMode = "FlatFace"
sketch7.AttachmentOffset = App.Placement(Vector(0, 0, 100), App.Rotation())
sketch7.addGeometry(Part.LineSegment(Vector(21.2, -68.1, 0), Vector(17.612503, -68.1, 0)), False)
sketch7.addGeometry(Part.LineSegment(Vector(17.612503, -68.1, 0), Vector(17.612503, -82.1, 0)), False)
sketch7.addGeometry(Part.LineSegment(Vector(17.612503, -82.1, 0), Vector(21.2, -82.1, 0)), False)
sketch7.addGeometry(Part.LineSegment(Vector(21.2, -82.1, 0), Vector(21.2, -68.1, 0)), False)
sketch7.addConstraint(Sketcher.Constraint("Coincident", 0, 2, 1, 1))
sketch7.addConstraint(Sketcher.Constraint("Coincident", 1, 2, 2, 1))
sketch7.addConstraint(Sketcher.Constraint("Coincident", 2, 2, 3, 1))
sketch7.addConstraint(Sketcher.Constraint("Coincident", 3, 2, 0, 1))
sketch7.addConstraint(Sketcher.Constraint("Horizontal", 0))
sketch7.addConstraint(Sketcher.Constraint("Vertical", 1))
sketch7.addConstraint(Sketcher.Constraint("Horizontal", 2))
sketch7.addConstraint(Sketcher.Constraint("Vertical", 3))
sketch7.addConstraint(Sketcher.Constraint("DistanceY", 1, 2, 1, 1, Q("14 mm")))
sketch7.addConstraint(Sketcher.Constraint("DistanceY", 0, 2, -1, 1, Q("68.1 mm")))
sketch7.addConstraint(Sketcher.Constraint("DistanceX", -1, 1, 2, 2, Q("21.2 mm")))
sketch7.addConstraint(Sketcher.Constraint("DistanceX", 0, 2, 0, 1, Q("3.587497 mm")))
pad5 = body.newObject("PartDesign::Pad", "Pad004")
pad5.Profile = sketch7
pad5.Length = 3.5

sketch8 = body.newObject("Sketcher::SketchObject", "Sketch007")
sketch8.AttachmentSupport = (doc.getObject("XZ_Plane"), [""])
sketch8.MapMode = "FlatFace"
sketch8.AttachmentOffset = App.Placement(Vector(0, 0, -21.2), App.Rotation())
sketch8.addGeometry(Part.Circle(Vector(101.26, -75.55, 0), Vector(0, 0, 1), 1.1), False)
sketch8.addConstraint(Sketcher.Constraint("Diameter", 0, Q("2.2 mm")))
sketch8.addConstraint(Sketcher.Constraint("DistanceX", -1, 1, 0, 3, Q("101.26 mm")))
sketch8.addConstraint(Sketcher.Constraint("DistanceY", 0, 3, -1, 1, Q("75.55 mm")))
pocket3 = body.newObject("PartDesign::Pocket", "Pocket002")
pocket3.Profile = sketch8
pocket3.Type = "UpToFirst"
pocket3.Reversed = True

sketch9 = body.newObject("Sketcher::SketchObject", "Sketch008")
sketch9.AttachmentSupport = (doc.getObject("XZ_Plane"), [""])
sketch9.MapMode = "FlatFace"
sketch9.AttachmentOffset = App.Placement(Vector(0, 0, -37), App.Rotation())
sketch9.addGeometry(Part.LineSegment(Vector(53, -95.1, 0), Vector(50, -95.1, 0)), False)
sketch9.addGeometry(Part.LineSegment(Vector(50, -95.1, 0), Vector(50, -52.1, 0)), False)
sketch9.addGeometry(Part.LineSegment(Vector(50, -52.1, 0), Vector(100, -52.1, 0)), False)
sketch9.addGeometry(Part.LineSegment(Vector(100, -52.1, 0), Vector(100, -68.1, 0)), False)
sketch9.addGeometry(Part.LineSegment(Vector(100, -68.1, 0), Vector(97, -68.1, 0)), False)
sketch9.addGeometry(Part.LineSegment(Vector(97, -68.1, 0), Vector(97, -55.1, 0)), False)
sketch9.addGeometry(Part.LineSegment(Vector(97, -55.1, 0), Vector(53, -55.1, 0)), False)
sketch9.addGeometry(Part.LineSegment(Vector(53, -55.1, 0), Vector(53, -95.1, 0)), False)
sketch9.addConstraint(Sketcher.Constraint("Coincident", 0, 2, 1, 1))
sketch9.addConstraint(Sketcher.Constraint("Coincident", 1, 2, 2, 1))
sketch9.addConstraint(Sketcher.Constraint("Coincident", 2, 2, 3, 1))
sketch9.addConstraint(Sketcher.Constraint("Coincident", 3, 2, 4, 1))
sketch9.addConstraint(Sketcher.Constraint("Coincident", 4, 2, 5, 1))
sketch9.addConstraint(Sketcher.Constraint("Coincident", 5, 2, 6, 1))
sketch9.addConstraint(Sketcher.Constraint("Coincident", 6, 2, 7, 1))
sketch9.addConstraint(Sketcher.Constraint("Coincident", 7, 2, 0, 1))
sketch9.addConstraint(Sketcher.Constraint("Horizontal", 0))
sketch9.addConstraint(Sketcher.Constraint("Vertical", 1))
sketch9.addConstraint(Sketcher.Constraint("Horizontal", 2))
sketch9.addConstraint(Sketcher.Constraint("Vertical", 3))
sketch9.addConstraint(Sketcher.Constraint("Horizontal", 4))
sketch9.addConstraint(Sketcher.Constraint("Vertical", 5))
sketch9.addConstraint(Sketcher.Constraint("Horizontal", 6))
sketch9.addConstraint(Sketcher.Constraint("Vertical", 7))
sketch9.addConstraint(Sketcher.Constraint("Equal", 0, 4))
sketch9.addConstraint(Sketcher.Constraint("DistanceX", 0, 2, 0, 1, Q("3 mm")))
sketch9.addConstraint(Sketcher.Constraint("DistanceX", 2, 1, 2, 2, Q("50 mm")))
sketch9.addConstraint(Sketcher.Constraint("DistanceY", 1, 1, 1, 2, Q("43 mm")))
sketch9.addConstraint(Sketcher.Constraint("DistanceY", 3, 2, 3, 1, Q("16 mm")))
sketch9.addConstraint(Sketcher.Constraint("DistanceY", 5, 1, 5, 2, Q("13 mm")))
sketch9.addConstraint(Sketcher.Constraint("DistanceX", -1, 1, 0, 2, Q("50 mm")))
sketch9.addConstraint(Sketcher.Constraint("DistanceY", 0, 2, -1, 1, Q("95.1 mm")))
pocket4 = body.newObject("PartDesign::Pocket", "Pocket003")
pocket4.Profile = sketch9
pocket4.Length = 4.5
pocket4.Reversed = True
doc.recompute()

fillet = body.newObject("PartDesign::Fillet", "Fillet")
fillet.Base = (pocket4, edges_at(pocket4, [
    (0, 35, 0),
    (0, 35, -150),
    (150, 35, -150),
    (150, 35, 0),
]))
fillet.Radius = 2

sketch10 = body.newObject("Sketcher::SketchObject", "Sketch009")
sketch10.AttachmentSupport = (doc.getObject("XZ_Plane"), [""])
sketch10.MapMode = "FlatFace"
sketch10.addGeometry(Part.LineSegment(Vector(36.6, -1.5, 0), Vector(1.5, -1.5, 0)), False)
sketch10.addGeometry(Part.LineSegment(Vector(1.5, -1.5, 0), Vector(1.5, -36.6, 0)), False)
sketch10.addGeometry(Part.LineSegment(Vector(1.5, -36.6, 0), Vector(3.6, -36.6, 0)), False)
sketch10.addGeometry(Part.LineSegment(Vector(3.6, -36.6, 0), Vector(3.6, -3.6, 0)), False)
sketch10.addGeometry(Part.LineSegment(Vector(3.6, -3.6, 0), Vector(36.6, -3.6, 0)), False)
sketch10.addGeometry(Part.LineSegment(Vector(36.6, -3.6, 0), Vector(36.6, -1.5, 0)), False)
sketch10.addGeometry(Part.LineSegment(Vector(148.5, -36.6, 0), Vector(148.5, -1.5, 0)), False)
sketch10.addGeometry(Part.LineSegment(Vector(148.5, -1.5, 0), Vector(113.4, -1.5, 0)), False)
sketch10.addGeometry(Part.LineSegment(Vector(113.4, -1.5, 0), Vector(113.4, -3.6, 0)), False)
sketch10.addGeometry(Part.LineSegment(Vector(113.4, -3.6, 0), Vector(146.4, -3.6, 0)), False)
sketch10.addGeometry(Part.LineSegment(Vector(146.4, -3.6, 0), Vector(146.4, -36.6, 0)), False)
sketch10.addGeometry(Part.LineSegment(Vector(146.4, -36.6, 0), Vector(148.5, -36.6, 0)), False)
sketch10.addGeometry(Part.LineSegment(Vector(113.4, -148.5, 0), Vector(148.5, -148.5, 0)), False)
sketch10.addGeometry(Part.LineSegment(Vector(148.5, -148.5, 0), Vector(148.5, -113.4, 0)), False)
sketch10.addGeometry(Part.LineSegment(Vector(148.5, -113.4, 0), Vector(146.4, -113.4, 0)), False)
sketch10.addGeometry(Part.LineSegment(Vector(146.4, -113.4, 0), Vector(146.4, -146.4, 0)), False)
sketch10.addGeometry(Part.LineSegment(Vector(146.4, -146.4, 0), Vector(113.4, -146.4, 0)), False)
sketch10.addGeometry(Part.LineSegment(Vector(113.4, -146.4, 0), Vector(113.4, -148.5, 0)), False)
sketch10.addGeometry(Part.LineSegment(Vector(1.5, -113.4, 0), Vector(1.5, -148.5, 0)), False)
sketch10.addGeometry(Part.LineSegment(Vector(1.5, -148.5, 0), Vector(36.6, -148.5, 0)), False)
sketch10.addGeometry(Part.LineSegment(Vector(36.6, -148.5, 0), Vector(36.6, -146.4, 0)), False)
sketch10.addGeometry(Part.LineSegment(Vector(36.6, -146.4, 0), Vector(3.6, -146.4, 0)), False)
sketch10.addGeometry(Part.LineSegment(Vector(3.6, -146.4, 0), Vector(3.6, -113.4, 0)), False)
sketch10.addGeometry(Part.LineSegment(Vector(3.6, -113.4, 0), Vector(1.5, -113.4, 0)), False)
sketch10.addConstraint(Sketcher.Constraint("Coincident", 0, 2, 1, 1))
sketch10.addConstraint(Sketcher.Constraint("Coincident", 1, 2, 2, 1))
sketch10.addConstraint(Sketcher.Constraint("Coincident", 2, 2, 3, 1))
sketch10.addConstraint(Sketcher.Constraint("Coincident", 3, 2, 4, 1))
sketch10.addConstraint(Sketcher.Constraint("Coincident", 4, 2, 5, 1))
sketch10.addConstraint(Sketcher.Constraint("Coincident", 5, 2, 0, 1))
sketch10.addConstraint(Sketcher.Constraint("Coincident", 6, 2, 7, 1))
sketch10.addConstraint(Sketcher.Constraint("Coincident", 7, 2, 8, 1))
sketch10.addConstraint(Sketcher.Constraint("Coincident", 8, 2, 9, 1))
sketch10.addConstraint(Sketcher.Constraint("Coincident", 9, 2, 10, 1))
sketch10.addConstraint(Sketcher.Constraint("Coincident", 10, 2, 11, 1))
sketch10.addConstraint(Sketcher.Constraint("Coincident", 11, 2, 6, 1))
sketch10.addConstraint(Sketcher.Constraint("Coincident", 12, 2, 13, 1))
sketch10.addConstraint(Sketcher.Constraint("Coincident", 13, 2, 14, 1))
sketch10.addConstraint(Sketcher.Constraint("Coincident", 14, 2, 15, 1))
sketch10.addConstraint(Sketcher.Constraint("Coincident", 15, 2, 16, 1))
sketch10.addConstraint(Sketcher.Constraint("Coincident", 16, 2, 17, 1))
sketch10.addConstraint(Sketcher.Constraint("Coincident", 17, 2, 12, 1))
sketch10.addConstraint(Sketcher.Constraint("Coincident", 18, 2, 19, 1))
sketch10.addConstraint(Sketcher.Constraint("Coincident", 19, 2, 20, 1))
sketch10.addConstraint(Sketcher.Constraint("Coincident", 20, 2, 21, 1))
sketch10.addConstraint(Sketcher.Constraint("Coincident", 21, 2, 22, 1))
sketch10.addConstraint(Sketcher.Constraint("Coincident", 22, 2, 23, 1))
sketch10.addConstraint(Sketcher.Constraint("Coincident", 23, 2, 18, 1))
sketch10.addConstraint(Sketcher.Constraint("Horizontal", 0))
sketch10.addConstraint(Sketcher.Constraint("Vertical", 1))
sketch10.addConstraint(Sketcher.Constraint("Horizontal", 2))
sketch10.addConstraint(Sketcher.Constraint("Vertical", 3))
sketch10.addConstraint(Sketcher.Constraint("Horizontal", 4))
sketch10.addConstraint(Sketcher.Constraint("Vertical", 5))
sketch10.addConstraint(Sketcher.Constraint("Vertical", 6))
sketch10.addConstraint(Sketcher.Constraint("Horizontal", 7))
sketch10.addConstraint(Sketcher.Constraint("Vertical", 8))
sketch10.addConstraint(Sketcher.Constraint("Horizontal", 9))
sketch10.addConstraint(Sketcher.Constraint("Vertical", 10))
sketch10.addConstraint(Sketcher.Constraint("Horizontal", 11))
sketch10.addConstraint(Sketcher.Constraint("Horizontal", 12))
sketch10.addConstraint(Sketcher.Constraint("Vertical", 13))
sketch10.addConstraint(Sketcher.Constraint("Horizontal", 14))
sketch10.addConstraint(Sketcher.Constraint("Vertical", 15))
sketch10.addConstraint(Sketcher.Constraint("Horizontal", 16))
sketch10.addConstraint(Sketcher.Constraint("Vertical", 17))
sketch10.addConstraint(Sketcher.Constraint("Vertical", 18))
sketch10.addConstraint(Sketcher.Constraint("Horizontal", 19))
sketch10.addConstraint(Sketcher.Constraint("Vertical", 20))
sketch10.addConstraint(Sketcher.Constraint("Horizontal", 21))
sketch10.addConstraint(Sketcher.Constraint("Vertical", 22))
sketch10.addConstraint(Sketcher.Constraint("Horizontal", 23))
sketch10.addConstraint(Sketcher.Constraint("Horizontal", 5, 2, 6, 2))
sketch10.addConstraint(Sketcher.Constraint("Horizontal", 4, 2, 8, 2))
sketch10.addConstraint(Sketcher.Constraint("Horizontal", 2, 2, 10, 2))
sketch10.addConstraint(Sketcher.Constraint("Horizontal", 17, 2, 18, 2))
sketch10.addConstraint(Sketcher.Constraint("Horizontal", 16, 2, 20, 2))
sketch10.addConstraint(Sketcher.Constraint("Horizontal", 14, 2, 22, 2))
sketch10.addConstraint(Sketcher.Constraint("Vertical", 11, 2, 12, 2))
sketch10.addConstraint(Sketcher.Constraint("Vertical", 10, 2, 14, 2))
sketch10.addConstraint(Sketcher.Constraint("Vertical", 8, 2, 16, 2))
sketch10.addConstraint(Sketcher.Constraint("Vertical", 1, 2, 18, 2))
sketch10.addConstraint(Sketcher.Constraint("Vertical", 5, 2, 19, 2))
sketch10.addConstraint(Sketcher.Constraint("Vertical", 3, 2, 21, 2))
sketch10.addConstraint(Sketcher.Constraint("Equal", 0, 7))
sketch10.addConstraint(Sketcher.Constraint("Equal", 4, 9))
sketch10.addConstraint(Sketcher.Constraint("Equal", 19, 1))
sketch10.addConstraint(Sketcher.Constraint("Equal", 21, 3))
sketch10.addConstraint(Sketcher.Constraint("Equal", 6, 13))
sketch10.addConstraint(Sketcher.Constraint("Equal", 10, 15))
sketch10.addConstraint(Sketcher.Constraint("DistanceX", 4, 1, 4, 2, Q("33 mm")))
sketch10.addConstraint(Sketcher.Constraint("DistanceX", 0, 2, 0, 1, Q("35.1 mm")))
sketch10.addConstraint(Sketcher.Constraint("DistanceX", 0, 2, 6, 2, Q("147 mm")))
sketch10.addConstraint(Sketcher.Constraint("DistanceY", 12, 2, 6, 2, Q("147 mm")))
sketch10.addConstraint(Sketcher.Constraint("DistanceX", -1, 1, 0, 2, Q("1.5 mm")))
sketch10.addConstraint(Sketcher.Constraint("DistanceY", 0, 2, -1, 1, Q("1.5 mm")))
pocket5 = body.newObject("PartDesign::Pocket", "Pocket004")
pocket5.Profile = sketch10
pocket5.Length = 20.1

sketch11 = body.newObject("Sketcher::SketchObject", "Sketch010")
sketch11.AttachmentSupport = (doc.getObject("XY_Plane"), [""])
sketch11.MapMode = "FlatFace"
sketch11.AttachmentOffset = App.Placement(Vector(0, 0, -5), App.Rotation())
sketch11.addGeometry(Part.Circle(Vector(90.731435, 13.615257, 0), Vector(0, 0, 1), 5), False)
sketch11.addConstraint(Sketcher.Constraint("Diameter", 0, Q("10 mm")))
sketch11.addConstraint(Sketcher.Constraint("DistanceX", -1, 1, 0, 3, Q("90.731435 mm")))
sketch11.addConstraint(Sketcher.Constraint("DistanceY", -1, 1, 0, 3, Q("13.615257 mm")))
pocket6 = body.newObject("PartDesign::Pocket", "Pocket005")
pocket6.Profile = sketch11
pocket6.Length = 20.1
pocket6.Reversed = True

doc.recompute()
